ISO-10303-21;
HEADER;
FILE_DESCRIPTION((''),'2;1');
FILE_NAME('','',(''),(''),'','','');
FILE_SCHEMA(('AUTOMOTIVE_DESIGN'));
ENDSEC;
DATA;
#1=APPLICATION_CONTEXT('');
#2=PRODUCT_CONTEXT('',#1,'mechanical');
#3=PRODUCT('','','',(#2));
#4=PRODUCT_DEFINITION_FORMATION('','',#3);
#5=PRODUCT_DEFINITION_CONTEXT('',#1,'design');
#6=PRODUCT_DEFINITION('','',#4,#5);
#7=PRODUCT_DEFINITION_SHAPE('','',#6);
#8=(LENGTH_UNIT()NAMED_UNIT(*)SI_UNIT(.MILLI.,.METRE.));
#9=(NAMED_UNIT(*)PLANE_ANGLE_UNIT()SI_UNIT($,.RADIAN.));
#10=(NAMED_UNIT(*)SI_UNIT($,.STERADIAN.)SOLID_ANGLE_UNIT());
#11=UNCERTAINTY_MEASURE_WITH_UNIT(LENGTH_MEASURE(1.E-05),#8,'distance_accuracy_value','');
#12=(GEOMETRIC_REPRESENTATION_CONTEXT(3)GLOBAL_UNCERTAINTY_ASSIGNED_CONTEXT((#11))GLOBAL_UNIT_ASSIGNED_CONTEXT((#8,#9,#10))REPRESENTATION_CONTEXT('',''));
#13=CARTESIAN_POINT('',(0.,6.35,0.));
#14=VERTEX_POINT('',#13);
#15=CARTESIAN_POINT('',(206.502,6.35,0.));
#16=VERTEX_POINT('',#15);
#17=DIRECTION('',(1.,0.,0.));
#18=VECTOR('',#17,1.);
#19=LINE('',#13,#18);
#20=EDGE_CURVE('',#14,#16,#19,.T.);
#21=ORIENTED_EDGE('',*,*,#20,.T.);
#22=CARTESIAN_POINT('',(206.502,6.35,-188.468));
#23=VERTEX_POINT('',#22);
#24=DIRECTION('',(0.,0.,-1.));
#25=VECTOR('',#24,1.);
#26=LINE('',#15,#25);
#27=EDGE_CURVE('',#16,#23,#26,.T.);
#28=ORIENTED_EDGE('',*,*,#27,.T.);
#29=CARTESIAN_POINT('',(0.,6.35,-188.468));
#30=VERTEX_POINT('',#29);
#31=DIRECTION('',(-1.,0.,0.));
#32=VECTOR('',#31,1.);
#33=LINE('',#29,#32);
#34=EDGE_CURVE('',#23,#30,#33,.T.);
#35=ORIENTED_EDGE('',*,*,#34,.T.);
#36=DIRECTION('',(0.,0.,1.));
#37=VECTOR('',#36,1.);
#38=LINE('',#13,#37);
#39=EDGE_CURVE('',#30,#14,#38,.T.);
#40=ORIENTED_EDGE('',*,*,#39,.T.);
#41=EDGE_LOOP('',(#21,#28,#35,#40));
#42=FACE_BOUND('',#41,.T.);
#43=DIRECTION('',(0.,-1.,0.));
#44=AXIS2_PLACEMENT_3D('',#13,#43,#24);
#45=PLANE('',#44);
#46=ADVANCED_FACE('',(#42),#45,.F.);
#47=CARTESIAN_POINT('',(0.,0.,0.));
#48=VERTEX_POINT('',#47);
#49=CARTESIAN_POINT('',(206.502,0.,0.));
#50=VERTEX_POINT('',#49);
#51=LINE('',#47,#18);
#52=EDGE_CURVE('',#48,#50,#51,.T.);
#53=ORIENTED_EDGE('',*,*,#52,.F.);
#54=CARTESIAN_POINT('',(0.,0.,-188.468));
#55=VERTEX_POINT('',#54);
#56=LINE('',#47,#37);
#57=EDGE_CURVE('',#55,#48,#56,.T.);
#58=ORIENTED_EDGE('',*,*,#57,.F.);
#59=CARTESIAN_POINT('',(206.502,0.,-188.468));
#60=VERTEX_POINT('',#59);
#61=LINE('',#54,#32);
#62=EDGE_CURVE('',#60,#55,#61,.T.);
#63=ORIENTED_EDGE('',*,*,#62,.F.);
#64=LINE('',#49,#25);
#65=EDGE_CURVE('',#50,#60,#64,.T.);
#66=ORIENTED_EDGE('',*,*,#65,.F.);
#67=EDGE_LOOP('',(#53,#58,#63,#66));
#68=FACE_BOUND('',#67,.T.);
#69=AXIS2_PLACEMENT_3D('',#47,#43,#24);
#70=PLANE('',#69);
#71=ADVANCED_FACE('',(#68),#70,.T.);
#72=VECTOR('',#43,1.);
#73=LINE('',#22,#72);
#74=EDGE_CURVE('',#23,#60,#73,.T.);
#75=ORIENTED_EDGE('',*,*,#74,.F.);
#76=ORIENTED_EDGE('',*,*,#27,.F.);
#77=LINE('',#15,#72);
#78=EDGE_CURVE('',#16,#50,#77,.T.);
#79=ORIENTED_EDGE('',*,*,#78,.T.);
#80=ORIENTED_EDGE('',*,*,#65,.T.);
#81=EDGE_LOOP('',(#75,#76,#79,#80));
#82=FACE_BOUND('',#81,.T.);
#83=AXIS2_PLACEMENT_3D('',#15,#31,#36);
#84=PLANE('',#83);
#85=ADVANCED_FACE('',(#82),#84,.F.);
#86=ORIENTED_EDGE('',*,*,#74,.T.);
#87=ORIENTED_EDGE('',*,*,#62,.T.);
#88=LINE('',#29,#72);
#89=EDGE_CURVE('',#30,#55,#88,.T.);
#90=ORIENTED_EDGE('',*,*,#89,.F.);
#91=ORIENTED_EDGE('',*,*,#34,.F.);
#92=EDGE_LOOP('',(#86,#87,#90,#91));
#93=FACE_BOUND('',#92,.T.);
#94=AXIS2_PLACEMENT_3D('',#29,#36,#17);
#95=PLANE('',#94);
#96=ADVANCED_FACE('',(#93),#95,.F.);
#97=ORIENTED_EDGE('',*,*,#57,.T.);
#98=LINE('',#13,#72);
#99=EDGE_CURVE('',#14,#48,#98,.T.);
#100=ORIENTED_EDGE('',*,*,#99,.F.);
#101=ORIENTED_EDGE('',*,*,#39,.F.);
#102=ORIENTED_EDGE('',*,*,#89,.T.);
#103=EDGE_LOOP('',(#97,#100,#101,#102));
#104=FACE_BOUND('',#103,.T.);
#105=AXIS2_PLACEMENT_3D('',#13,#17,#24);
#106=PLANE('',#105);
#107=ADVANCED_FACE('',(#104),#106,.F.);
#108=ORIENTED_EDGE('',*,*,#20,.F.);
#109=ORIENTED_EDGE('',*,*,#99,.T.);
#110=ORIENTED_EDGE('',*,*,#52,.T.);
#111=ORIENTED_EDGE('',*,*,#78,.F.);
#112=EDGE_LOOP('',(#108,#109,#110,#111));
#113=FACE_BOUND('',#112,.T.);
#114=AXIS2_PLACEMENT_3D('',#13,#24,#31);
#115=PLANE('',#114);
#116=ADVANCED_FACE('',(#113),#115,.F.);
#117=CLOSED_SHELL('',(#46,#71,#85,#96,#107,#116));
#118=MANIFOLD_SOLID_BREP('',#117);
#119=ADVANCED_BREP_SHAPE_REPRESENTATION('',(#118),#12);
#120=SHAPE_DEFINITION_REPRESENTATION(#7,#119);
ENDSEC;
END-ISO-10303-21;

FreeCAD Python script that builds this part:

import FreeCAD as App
import Part
import Sketcher
Q = App.Units.Quantity


def add_polygon(sketch, points):
    """Adds a closed chain of lines whose ends are joined by coincident constraints."""
    first, n = sketch.GeometryCount, len(points)
    for a, b in zip(points, points[1:] + points[:1]):
        sketch.addGeometry(Part.LineSegment(App.Vector(*a, 0), App.Vector(*b, 0)), False)
    for i in range(n):
        sketch.addConstraint(Sketcher.Constraint("Coincident", first + i, 2, first + (i + 1) % n, 1))

doc = App.newDocument("Part")
params = doc.addObject("Spreadsheet::Sheet", "Params")
for row, (alias, value) in enumerate([
    ("sketch1_width", "8.13 in"),
    ("sketch1_height", "7.42 in"),
    ("pad1_length", "0.25 in"),
], start=1):
    params.set(f"A{row}", alias)
    params.set(f"B{row}", "=" + value)
    params.setAlias(f"B{row}", alias)

body = doc.addObject("PartDesign::Body", "Body")

# Sketch on XZ plane
sketch1 = doc.addObject("Sketcher::SketchObject", "Sketch")
body.addObject(sketch1)
sketch1.AttachmentSupport = (doc.XZ_Plane, [""])
sketch1.MapMode = "FlatFace"
add_polygon(sketch1, [(0, -188.468), (0, 0), (206.502, 0), (206.502, -188.468)])  # lines 0-3
sketch1.addConstraint([
    Sketcher.Constraint("Vertical", 0),
    Sketcher.Constraint("Horizontal", 1),
    Sketcher.Constraint("Vertical", 2),
    Sketcher.Constraint("Horizontal", 3),
    Sketcher.Constraint("Coincident", 0, 2, -1, 1),
    Sketcher.Constraint("DistanceX", 1, 1, 1, 2, Q("8.13 in")),
    Sketcher.Constraint("DistanceY", 0, 1, 0, 2, Q("7.42 in")),
])
sketch1.setExpression("Constraints[9]", "Params.sketch1_width")
sketch1.setExpression("Constraints[10]", "Params.sketch1_height")
pad1 = doc.addObject("PartDesign::Pad", "Pad")
body.addObject(pad1)
pad1.Profile = sketch1
pad1.setExpression("Length", "Params.pad1_length")
pad1.Reversed = True

doc.recompute()
